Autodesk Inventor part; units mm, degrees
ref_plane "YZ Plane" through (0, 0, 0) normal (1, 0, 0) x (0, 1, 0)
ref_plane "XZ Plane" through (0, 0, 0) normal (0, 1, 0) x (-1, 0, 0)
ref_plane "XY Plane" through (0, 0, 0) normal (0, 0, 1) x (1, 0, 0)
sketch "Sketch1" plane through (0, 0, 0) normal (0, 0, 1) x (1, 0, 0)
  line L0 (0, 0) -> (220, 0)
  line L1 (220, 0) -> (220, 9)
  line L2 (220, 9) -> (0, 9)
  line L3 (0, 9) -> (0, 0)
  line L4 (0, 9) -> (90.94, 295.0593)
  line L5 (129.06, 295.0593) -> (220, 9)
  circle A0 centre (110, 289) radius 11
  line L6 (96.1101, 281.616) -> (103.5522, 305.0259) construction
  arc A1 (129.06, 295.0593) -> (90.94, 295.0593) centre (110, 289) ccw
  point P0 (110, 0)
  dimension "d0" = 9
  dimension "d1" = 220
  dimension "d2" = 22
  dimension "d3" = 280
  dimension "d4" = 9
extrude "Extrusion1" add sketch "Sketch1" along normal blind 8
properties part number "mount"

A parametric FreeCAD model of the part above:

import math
import FreeCAD as App
import Part
import Sketcher
Q = App.Units.Quantity

doc = App.newDocument("Part")
body = doc.addObject("PartDesign::Body", "Body")

sketch1 = body.newObject("Sketcher::SketchObject", "Sketch")
sketch1.AttachmentSupport = (doc.getObject("XY_Plane"), [""])
sketch1.MapMode = "FlatFace"
sketch1.addGeometry(Part.LineSegment(App.Vector(0, 9, 0), App.Vector(0, 0, 0)), False)
sketch1.addGeometry(Part.LineSegment(App.Vector(0, 0, 0), App.Vector(220, 0, 0)), False)
sketch1.addGeometry(Part.LineSegment(App.Vector(220, 0, 0), App.Vector(220, 9, 0)), False)
sketch1.addGeometry(Part.LineSegment(App.Vector(220, 9, 0), App.Vector(129, 295, 0)), False)
sketch1.addGeometry(Part.ArcOfCircle(Part.Circle(App.Vector(110, 289, 0), App.Vector(0, 0, 1), 20), math.radians(18), math.radians(162)), False)
sketch1.addGeometry(Part.LineSegment(App.Vector(91, 295, 0), App.Vector(0, 9, 0)), False)
sketch1.addGeometry(Part.Circle(App.Vector(110, 289, 0), App.Vector(0, 0, 1), 11), False)
sketch1.addConstraint(Sketcher.Constraint("Coincident", 0, 2, 1, 1))
sketch1.addConstraint(Sketcher.Constraint("Coincident", 1, 2, 2, 1))
sketch1.addConstraint(Sketcher.Constraint("Coincident", 2, 2, 3, 1))
sketch1.addConstraint(Sketcher.Constraint("Tangent", 3, 2, 4, 1))
sketch1.addConstraint(Sketcher.Constraint("Tangent", 4, 2, 5, 1))
sketch1.addConstraint(Sketcher.Constraint("Coincident", 5, 2, 0, 1))
sketch1.addConstraint(Sketcher.Constraint("Vertical", 0))
sketch1.addConstraint(Sketcher.Constraint("Horizontal", 1))
sketch1.addConstraint(Sketcher.Constraint("Vertical", 2))
sketch1.addConstraint(Sketcher.Constraint("Coincident", 0, 2, -1, 1))
sketch1.addConstraint(Sketcher.Constraint("Coincident", 6, 3, 4, 3))
sketch1.addConstraint(Sketcher.Constraint("Horizontal", 3, 2, 4, 2))
sketch1.addConstraint(Sketcher.Constraint("Horizontal", 2, 2, 5, 2))
sketch1.addConstraint(Sketcher.Constraint("Diameter", 6, Q("22 mm")))
sketch1.addConstraint(Sketcher.Constraint("DistanceX", 1, 1, 1, 2, Q("220 mm")))
sketch1.addConstraint(Sketcher.Constraint("DistanceY", 0, 2, 0, 1, Q("9 mm")))
sketch1.addConstraint(Sketcher.Constraint("Radius", 4, Q("20 mm")))
sketch1.addConstraint(Sketcher.Constraint("DistanceY", 2, 2, 4, 3, Q("280 mm")))
pad1 = body.newObject("PartDesign::Pad", "Pad")
pad1.Profile = sketch1
pad1.Length = 8

doc.recompute()
